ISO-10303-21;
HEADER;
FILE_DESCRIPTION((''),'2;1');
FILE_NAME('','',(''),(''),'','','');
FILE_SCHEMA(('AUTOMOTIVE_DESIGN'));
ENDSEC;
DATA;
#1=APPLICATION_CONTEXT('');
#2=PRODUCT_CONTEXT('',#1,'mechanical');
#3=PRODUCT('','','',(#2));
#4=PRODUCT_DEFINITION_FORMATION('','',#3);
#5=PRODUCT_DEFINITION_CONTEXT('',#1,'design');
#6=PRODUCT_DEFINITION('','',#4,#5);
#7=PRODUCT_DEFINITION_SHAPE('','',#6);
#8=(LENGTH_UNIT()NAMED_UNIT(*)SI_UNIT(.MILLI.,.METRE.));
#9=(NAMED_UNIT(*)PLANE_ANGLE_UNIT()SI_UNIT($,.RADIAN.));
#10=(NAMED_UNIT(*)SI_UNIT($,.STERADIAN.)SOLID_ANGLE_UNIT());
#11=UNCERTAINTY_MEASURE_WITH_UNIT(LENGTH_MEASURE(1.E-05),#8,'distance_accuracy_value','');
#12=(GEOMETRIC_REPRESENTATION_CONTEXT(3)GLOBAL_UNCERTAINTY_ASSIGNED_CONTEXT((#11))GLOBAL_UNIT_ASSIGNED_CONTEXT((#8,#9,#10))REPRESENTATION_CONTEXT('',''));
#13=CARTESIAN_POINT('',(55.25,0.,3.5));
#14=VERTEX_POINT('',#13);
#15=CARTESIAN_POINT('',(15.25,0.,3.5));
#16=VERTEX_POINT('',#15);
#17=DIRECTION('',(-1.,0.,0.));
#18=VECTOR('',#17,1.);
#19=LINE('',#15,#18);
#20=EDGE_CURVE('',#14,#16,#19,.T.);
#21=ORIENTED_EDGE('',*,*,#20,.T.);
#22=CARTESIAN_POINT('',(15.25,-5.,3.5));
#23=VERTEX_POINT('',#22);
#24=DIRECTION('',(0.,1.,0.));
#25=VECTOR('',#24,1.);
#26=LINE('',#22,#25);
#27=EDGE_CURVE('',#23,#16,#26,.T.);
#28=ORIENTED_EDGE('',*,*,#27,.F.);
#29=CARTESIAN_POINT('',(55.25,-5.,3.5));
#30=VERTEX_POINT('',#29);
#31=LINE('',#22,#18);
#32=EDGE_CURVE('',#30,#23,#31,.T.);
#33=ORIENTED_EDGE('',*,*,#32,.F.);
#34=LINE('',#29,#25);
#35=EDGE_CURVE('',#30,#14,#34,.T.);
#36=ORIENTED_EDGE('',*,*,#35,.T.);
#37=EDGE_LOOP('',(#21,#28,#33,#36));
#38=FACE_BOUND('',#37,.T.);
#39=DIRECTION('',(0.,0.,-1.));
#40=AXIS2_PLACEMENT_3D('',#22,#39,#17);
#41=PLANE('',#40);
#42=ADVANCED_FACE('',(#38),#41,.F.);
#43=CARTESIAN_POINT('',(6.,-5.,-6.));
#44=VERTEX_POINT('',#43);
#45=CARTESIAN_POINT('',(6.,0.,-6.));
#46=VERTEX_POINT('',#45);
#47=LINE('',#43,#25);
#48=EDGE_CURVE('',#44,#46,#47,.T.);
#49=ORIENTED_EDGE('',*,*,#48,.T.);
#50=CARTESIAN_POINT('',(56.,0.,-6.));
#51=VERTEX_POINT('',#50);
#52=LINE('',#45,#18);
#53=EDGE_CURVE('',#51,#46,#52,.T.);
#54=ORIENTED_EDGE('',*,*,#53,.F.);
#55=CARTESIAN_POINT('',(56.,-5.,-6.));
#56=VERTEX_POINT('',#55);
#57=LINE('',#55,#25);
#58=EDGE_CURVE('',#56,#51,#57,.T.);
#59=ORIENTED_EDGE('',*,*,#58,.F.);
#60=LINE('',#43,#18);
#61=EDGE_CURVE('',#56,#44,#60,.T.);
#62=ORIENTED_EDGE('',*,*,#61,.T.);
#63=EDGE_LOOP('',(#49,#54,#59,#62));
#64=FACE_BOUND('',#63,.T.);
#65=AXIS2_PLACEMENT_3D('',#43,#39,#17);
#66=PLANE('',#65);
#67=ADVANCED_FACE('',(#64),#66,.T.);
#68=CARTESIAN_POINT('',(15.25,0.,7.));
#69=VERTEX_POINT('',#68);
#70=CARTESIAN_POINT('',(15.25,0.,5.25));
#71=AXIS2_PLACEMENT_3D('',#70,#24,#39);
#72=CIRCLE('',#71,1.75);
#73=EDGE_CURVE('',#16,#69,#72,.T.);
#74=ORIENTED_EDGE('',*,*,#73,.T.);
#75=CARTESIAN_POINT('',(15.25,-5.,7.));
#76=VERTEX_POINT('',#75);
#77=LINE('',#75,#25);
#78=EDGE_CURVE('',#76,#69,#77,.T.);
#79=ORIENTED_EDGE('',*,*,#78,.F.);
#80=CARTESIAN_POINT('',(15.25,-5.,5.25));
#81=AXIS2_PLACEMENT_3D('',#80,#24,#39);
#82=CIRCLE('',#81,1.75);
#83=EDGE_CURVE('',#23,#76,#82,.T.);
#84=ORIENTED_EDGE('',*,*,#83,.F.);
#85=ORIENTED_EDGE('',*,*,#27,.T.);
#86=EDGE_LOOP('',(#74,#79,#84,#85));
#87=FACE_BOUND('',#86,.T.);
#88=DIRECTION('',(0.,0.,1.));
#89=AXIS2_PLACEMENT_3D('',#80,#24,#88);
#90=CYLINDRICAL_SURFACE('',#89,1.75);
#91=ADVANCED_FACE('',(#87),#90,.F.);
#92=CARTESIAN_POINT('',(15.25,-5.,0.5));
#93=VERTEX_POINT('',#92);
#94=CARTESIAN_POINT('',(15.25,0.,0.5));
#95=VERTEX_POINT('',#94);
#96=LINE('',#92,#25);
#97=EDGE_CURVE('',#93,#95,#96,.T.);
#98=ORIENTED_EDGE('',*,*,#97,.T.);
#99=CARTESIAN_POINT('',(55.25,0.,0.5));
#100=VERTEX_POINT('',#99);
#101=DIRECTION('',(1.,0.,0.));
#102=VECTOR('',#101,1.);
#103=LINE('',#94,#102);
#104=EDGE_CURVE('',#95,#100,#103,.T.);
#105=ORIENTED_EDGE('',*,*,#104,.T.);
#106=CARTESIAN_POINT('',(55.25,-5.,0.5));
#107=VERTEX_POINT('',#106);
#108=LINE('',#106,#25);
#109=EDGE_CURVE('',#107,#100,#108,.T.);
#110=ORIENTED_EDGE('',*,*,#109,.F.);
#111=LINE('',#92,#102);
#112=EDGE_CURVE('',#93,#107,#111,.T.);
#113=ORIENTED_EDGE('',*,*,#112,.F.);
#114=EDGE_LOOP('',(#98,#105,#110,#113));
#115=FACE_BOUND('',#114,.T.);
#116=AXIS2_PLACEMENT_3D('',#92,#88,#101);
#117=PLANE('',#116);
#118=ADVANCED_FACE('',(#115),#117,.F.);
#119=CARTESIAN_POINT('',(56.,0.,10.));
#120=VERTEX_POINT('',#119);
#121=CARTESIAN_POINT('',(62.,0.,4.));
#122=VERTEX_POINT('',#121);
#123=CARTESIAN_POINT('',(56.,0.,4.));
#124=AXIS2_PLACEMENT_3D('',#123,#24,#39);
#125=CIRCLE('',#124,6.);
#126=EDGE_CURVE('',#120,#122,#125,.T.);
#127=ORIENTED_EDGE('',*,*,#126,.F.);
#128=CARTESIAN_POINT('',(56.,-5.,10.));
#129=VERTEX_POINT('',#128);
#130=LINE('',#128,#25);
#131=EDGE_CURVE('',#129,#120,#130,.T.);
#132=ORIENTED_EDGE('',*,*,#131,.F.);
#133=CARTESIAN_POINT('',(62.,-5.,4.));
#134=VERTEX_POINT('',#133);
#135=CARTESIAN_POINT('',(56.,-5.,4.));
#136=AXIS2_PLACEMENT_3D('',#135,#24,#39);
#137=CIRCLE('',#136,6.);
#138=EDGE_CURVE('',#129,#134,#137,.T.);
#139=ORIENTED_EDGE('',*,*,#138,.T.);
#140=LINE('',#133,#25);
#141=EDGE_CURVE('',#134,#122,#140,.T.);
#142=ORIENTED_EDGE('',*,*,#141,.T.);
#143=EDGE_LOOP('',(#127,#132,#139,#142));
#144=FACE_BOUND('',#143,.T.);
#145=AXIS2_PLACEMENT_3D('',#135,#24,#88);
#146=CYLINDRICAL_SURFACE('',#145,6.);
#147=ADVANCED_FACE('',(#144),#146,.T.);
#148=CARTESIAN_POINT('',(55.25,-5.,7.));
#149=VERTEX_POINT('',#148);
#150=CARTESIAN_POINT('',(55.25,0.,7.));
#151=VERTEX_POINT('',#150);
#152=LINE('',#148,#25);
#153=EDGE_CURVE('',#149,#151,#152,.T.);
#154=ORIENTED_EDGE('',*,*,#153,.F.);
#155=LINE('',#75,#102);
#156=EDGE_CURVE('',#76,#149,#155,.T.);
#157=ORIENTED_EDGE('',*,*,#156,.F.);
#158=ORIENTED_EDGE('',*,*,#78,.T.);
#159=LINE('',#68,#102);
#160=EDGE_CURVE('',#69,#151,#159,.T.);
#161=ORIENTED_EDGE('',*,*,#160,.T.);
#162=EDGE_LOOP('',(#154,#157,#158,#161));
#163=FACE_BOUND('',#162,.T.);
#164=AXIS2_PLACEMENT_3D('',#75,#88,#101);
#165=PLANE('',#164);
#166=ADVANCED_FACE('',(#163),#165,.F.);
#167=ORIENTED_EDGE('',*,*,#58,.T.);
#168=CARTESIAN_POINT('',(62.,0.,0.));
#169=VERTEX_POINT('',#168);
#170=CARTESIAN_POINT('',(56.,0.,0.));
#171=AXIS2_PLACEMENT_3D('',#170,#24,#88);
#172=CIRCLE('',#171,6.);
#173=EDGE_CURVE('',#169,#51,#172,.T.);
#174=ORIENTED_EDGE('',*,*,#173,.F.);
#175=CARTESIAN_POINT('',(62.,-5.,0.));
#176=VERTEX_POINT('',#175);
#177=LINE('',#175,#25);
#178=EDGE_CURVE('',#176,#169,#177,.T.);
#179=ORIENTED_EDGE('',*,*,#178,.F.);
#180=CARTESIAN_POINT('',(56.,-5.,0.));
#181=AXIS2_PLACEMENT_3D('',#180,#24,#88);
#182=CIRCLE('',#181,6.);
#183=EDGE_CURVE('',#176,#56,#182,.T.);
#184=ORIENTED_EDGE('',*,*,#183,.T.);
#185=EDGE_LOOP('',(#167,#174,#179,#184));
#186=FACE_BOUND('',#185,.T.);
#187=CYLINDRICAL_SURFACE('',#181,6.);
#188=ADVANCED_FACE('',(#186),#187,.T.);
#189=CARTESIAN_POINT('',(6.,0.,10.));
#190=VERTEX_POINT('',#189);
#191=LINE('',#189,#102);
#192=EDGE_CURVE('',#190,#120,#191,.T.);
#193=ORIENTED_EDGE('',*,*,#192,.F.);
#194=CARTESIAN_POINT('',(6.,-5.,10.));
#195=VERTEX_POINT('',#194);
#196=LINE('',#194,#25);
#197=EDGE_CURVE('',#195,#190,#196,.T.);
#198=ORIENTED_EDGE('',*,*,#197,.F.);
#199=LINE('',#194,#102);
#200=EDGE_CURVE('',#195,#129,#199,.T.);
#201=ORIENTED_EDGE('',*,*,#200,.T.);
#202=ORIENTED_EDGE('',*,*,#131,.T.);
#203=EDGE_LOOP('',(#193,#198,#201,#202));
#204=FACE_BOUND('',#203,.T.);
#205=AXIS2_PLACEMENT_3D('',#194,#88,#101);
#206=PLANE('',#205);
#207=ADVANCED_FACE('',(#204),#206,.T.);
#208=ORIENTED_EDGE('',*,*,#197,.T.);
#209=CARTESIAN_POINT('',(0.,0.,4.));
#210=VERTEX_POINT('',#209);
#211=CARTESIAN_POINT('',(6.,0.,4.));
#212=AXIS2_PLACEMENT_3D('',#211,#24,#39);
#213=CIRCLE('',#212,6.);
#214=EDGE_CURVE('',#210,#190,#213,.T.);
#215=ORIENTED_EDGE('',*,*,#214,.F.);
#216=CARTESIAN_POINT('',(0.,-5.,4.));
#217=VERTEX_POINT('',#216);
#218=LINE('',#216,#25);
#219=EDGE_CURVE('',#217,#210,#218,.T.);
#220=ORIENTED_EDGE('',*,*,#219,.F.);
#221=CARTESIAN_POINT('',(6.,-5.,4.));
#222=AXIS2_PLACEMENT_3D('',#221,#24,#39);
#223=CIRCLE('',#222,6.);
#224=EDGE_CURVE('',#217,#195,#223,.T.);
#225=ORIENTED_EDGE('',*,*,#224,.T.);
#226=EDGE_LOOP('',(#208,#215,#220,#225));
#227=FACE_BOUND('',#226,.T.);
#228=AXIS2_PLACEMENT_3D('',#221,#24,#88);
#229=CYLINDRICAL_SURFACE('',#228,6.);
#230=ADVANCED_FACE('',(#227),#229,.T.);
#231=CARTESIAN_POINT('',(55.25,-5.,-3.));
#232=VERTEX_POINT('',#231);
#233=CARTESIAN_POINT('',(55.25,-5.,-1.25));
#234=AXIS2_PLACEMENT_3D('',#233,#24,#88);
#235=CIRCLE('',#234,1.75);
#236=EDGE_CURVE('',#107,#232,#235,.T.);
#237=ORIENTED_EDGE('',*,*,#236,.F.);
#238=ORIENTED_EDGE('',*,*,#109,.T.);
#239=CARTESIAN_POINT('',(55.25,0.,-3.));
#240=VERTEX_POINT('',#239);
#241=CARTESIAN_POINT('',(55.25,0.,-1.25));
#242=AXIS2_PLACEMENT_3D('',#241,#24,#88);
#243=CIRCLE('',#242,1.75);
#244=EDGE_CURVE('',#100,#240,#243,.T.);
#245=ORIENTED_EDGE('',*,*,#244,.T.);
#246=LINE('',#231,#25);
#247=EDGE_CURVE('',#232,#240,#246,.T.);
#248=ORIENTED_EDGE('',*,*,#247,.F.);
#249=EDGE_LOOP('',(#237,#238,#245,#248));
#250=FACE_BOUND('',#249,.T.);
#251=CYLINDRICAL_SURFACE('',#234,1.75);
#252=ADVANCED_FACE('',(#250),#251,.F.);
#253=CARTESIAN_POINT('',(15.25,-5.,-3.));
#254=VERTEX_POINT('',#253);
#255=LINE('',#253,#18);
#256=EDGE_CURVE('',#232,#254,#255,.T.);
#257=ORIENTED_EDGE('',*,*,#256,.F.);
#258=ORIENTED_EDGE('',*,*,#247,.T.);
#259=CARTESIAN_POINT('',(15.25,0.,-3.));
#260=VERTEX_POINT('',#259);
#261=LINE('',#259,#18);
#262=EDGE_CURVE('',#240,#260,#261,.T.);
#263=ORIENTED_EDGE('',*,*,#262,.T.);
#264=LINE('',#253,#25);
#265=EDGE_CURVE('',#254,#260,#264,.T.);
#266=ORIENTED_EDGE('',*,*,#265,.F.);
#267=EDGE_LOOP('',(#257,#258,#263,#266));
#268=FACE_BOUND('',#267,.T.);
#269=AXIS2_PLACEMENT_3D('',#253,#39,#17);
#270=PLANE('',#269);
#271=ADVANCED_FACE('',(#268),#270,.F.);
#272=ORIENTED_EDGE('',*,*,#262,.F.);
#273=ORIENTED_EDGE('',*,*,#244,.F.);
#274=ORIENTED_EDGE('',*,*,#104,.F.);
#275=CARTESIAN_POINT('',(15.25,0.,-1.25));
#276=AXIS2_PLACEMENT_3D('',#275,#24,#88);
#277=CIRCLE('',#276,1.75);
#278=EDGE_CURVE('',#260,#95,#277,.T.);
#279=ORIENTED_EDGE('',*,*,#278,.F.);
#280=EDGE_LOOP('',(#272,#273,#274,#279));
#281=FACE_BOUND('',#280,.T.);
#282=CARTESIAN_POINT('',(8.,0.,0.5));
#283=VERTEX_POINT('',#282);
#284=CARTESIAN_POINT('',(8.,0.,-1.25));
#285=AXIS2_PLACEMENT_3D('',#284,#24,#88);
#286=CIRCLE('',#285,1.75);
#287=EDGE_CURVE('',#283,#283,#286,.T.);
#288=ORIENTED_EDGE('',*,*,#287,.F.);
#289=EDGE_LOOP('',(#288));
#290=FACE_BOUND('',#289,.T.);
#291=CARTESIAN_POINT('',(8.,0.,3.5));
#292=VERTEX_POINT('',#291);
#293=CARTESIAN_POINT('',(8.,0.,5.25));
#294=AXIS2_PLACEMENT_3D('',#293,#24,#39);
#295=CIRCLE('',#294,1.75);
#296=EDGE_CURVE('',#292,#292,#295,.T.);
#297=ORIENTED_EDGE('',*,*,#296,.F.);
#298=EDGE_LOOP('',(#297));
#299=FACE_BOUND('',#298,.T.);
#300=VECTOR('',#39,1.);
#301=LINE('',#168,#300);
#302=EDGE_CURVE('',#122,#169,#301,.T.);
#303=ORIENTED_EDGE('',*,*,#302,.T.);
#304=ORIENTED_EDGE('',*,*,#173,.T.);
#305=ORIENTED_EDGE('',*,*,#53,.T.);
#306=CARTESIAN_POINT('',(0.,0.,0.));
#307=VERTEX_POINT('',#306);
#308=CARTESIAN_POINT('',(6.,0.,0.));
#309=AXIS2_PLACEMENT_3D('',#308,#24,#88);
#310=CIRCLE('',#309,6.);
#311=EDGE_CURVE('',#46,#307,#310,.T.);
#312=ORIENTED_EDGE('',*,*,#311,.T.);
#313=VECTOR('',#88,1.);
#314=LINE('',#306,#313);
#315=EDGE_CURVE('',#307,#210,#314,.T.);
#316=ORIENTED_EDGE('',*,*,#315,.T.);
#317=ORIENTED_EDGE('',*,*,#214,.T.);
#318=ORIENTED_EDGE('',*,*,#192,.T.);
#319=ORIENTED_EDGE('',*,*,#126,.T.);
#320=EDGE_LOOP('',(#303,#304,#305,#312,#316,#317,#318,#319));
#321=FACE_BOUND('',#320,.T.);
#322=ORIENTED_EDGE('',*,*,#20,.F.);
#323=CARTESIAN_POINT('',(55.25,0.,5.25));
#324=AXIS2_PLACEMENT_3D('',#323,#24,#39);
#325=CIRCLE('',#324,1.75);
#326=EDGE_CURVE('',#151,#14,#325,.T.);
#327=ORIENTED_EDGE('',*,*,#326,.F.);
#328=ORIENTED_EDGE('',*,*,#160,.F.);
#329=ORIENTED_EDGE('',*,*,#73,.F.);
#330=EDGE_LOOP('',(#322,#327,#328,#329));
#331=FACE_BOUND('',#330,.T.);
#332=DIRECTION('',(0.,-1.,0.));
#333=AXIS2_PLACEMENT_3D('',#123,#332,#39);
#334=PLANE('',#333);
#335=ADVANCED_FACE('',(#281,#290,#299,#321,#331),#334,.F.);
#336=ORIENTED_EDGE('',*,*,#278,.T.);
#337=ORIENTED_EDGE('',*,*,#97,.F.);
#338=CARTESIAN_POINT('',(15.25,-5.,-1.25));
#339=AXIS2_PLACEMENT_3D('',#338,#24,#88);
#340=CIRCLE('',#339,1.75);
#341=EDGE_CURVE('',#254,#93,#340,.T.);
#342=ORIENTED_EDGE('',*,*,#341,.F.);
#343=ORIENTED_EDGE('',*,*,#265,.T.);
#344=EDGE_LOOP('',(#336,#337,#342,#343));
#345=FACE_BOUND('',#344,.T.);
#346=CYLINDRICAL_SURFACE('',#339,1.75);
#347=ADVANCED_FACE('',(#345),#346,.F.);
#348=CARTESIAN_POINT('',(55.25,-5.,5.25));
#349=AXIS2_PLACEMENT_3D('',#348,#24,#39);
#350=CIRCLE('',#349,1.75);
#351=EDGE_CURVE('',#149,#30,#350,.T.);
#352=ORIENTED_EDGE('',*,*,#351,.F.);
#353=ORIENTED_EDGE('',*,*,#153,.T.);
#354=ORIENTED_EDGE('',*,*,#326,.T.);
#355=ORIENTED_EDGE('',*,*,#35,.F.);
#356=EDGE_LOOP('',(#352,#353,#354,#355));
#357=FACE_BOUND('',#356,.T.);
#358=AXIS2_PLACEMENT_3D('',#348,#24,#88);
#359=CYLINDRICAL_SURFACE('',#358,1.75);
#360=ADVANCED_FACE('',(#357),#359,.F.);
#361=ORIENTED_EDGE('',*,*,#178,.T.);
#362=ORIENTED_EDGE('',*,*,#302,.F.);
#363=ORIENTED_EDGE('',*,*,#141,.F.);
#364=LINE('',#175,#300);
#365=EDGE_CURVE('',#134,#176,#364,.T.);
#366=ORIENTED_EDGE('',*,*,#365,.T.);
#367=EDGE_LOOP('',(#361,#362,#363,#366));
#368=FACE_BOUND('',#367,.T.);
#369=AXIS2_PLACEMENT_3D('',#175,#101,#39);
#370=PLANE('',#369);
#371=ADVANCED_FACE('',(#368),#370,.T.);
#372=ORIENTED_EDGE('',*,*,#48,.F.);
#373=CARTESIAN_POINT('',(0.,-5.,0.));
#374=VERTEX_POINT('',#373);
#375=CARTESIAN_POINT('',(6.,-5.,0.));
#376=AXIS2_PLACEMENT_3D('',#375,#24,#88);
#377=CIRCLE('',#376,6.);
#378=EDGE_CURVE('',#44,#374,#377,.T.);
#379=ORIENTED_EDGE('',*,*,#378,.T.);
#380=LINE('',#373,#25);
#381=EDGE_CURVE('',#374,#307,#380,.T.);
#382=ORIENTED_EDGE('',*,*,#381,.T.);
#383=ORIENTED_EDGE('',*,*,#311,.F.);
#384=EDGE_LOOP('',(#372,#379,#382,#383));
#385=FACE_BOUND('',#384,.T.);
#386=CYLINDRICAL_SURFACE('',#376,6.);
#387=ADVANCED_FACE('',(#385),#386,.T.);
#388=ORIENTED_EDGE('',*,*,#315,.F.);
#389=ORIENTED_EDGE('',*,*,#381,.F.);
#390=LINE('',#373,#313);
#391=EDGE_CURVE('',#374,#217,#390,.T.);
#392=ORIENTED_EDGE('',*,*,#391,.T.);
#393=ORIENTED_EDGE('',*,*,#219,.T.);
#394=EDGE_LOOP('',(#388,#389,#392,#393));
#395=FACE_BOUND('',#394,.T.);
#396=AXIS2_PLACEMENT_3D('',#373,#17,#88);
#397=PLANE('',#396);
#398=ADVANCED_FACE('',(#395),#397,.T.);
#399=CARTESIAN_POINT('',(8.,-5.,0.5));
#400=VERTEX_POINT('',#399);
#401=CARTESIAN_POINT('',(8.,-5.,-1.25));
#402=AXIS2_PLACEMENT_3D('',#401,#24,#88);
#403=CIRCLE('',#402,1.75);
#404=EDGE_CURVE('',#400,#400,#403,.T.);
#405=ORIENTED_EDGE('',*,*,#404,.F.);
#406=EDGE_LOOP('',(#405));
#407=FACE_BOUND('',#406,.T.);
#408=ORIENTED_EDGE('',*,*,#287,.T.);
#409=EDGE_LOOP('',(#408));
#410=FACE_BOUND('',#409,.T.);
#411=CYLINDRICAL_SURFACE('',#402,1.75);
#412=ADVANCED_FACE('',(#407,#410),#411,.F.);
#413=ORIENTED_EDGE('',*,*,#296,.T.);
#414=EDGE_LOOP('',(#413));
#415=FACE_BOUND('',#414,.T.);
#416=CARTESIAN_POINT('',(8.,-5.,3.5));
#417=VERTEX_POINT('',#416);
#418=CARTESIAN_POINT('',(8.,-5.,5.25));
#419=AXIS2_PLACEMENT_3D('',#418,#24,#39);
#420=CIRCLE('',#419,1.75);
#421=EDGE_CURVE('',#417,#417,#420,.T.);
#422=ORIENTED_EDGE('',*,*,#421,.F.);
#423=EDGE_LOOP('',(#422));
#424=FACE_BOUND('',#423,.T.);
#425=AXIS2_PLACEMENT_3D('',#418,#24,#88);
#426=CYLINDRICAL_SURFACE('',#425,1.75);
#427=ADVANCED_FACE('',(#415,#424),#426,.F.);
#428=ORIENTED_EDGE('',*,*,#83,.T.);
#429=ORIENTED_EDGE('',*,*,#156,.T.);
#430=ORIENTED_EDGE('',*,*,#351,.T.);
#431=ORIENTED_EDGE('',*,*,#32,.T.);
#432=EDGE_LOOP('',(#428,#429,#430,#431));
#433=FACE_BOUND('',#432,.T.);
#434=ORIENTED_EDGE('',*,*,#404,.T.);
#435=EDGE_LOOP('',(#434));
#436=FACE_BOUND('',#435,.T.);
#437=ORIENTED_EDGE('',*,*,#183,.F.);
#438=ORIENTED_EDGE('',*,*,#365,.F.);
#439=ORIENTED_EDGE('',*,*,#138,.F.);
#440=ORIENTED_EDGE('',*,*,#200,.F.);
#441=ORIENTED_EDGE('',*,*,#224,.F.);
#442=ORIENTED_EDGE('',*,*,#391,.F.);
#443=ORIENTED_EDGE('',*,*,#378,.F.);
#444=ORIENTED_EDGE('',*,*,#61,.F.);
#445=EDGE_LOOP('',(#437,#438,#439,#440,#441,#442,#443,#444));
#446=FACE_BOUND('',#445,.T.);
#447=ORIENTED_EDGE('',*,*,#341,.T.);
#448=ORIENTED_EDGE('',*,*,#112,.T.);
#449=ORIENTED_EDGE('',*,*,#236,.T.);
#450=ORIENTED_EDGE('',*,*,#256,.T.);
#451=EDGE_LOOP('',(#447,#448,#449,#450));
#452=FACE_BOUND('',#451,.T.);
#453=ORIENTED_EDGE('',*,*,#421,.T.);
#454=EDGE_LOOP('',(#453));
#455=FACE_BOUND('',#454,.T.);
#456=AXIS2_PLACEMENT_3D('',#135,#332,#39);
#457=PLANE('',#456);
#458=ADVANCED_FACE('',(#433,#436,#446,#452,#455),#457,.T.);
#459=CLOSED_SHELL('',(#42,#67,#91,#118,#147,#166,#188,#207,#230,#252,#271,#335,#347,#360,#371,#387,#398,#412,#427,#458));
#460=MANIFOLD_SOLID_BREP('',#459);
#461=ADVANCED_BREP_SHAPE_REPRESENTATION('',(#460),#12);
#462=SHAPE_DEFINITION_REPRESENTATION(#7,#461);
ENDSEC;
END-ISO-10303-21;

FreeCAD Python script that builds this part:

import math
import FreeCAD as App
import Part
import Sketcher
Q = App.Units.Quantity

doc = App.newDocument("Part")
body = doc.addObject("PartDesign::Body", "Body")

sketch1 = body.newObject("Sketcher::SketchObject", "Sketch")
sketch1.AttachmentSupport = (doc.getObject("XZ_Plane"), [""])
sketch1.MapMode = "FlatFace"
sketch1.addGeometry([
    Part.LineSegment(App.Vector(56, -6, 0), App.Vector(6, -6, 0)),
    Part.ArcOfCircle(Part.Circle(App.Vector(6, 0, 0), App.Vector(0, 0, 1), 6), math.radians(180), math.radians(270)),
    Part.LineSegment(App.Vector(0, 0, 0), App.Vector(0, 4, 0)),
    Part.ArcOfCircle(Part.Circle(App.Vector(6, 4, 0), App.Vector(0, 0, 1), 6), math.radians(90), math.radians(180)),
    Part.LineSegment(App.Vector(6, 10, 0), App.Vector(56, 10, 0)),
    Part.ArcOfCircle(Part.Circle(App.Vector(56, 4, 0), App.Vector(0, 0, 1), 6), math.radians(0), math.radians(90)),
    Part.LineSegment(App.Vector(62, 4, 0), App.Vector(62, 0, 0)),
    Part.ArcOfCircle(Part.Circle(App.Vector(56, 0, 0), App.Vector(0, 0, 1), 6), math.radians(-90), math.radians(0)),
    Part.ArcOfCircle(Part.Circle(App.Vector(15.25, 5.25, 0), App.Vector(0, 0, 1), 1.75), math.radians(90), math.radians(270)),
    Part.LineSegment(App.Vector(15.25, 3.5, 0), App.Vector(55.25, 3.5, 0)),
    Part.ArcOfCircle(Part.Circle(App.Vector(55.25, 5.25, 0), App.Vector(0, 0, 1), 1.75), math.radians(-90), math.radians(90)),
    Part.LineSegment(App.Vector(55.25, 7, 0), App.Vector(15.25, 7, 0)),
    Part.Circle(App.Vector(8, 5.25, 0), App.Vector(0, 0, 1), 1.75),
    Part.LineSegment(App.Vector(15.25, -3, 0), App.Vector(55.25, -3, 0)),
    Part.ArcOfCircle(Part.Circle(App.Vector(55.25, -1.25, 0), App.Vector(0, 0, 1), 1.75), math.radians(-90), math.radians(90)),
    Part.LineSegment(App.Vector(55.25, 0.5, 0), App.Vector(15.25, 0.5, 0)),
    Part.ArcOfCircle(Part.Circle(App.Vector(15.25, -1.25, 0), App.Vector(0, 0, 1), 1.75), math.radians(90), math.radians(270)),
    Part.Circle(App.Vector(8, -1.25, 0), App.Vector(0, 0, 1), 1.75),
], False)
sketch1.addConstraint([
    Sketcher.Constraint("Tangent", 0, 2, 1, 2),
    Sketcher.Constraint("Tangent", 1, 1, 2, 1),
    Sketcher.Constraint("Tangent", 2, 2, 3, 2),
    Sketcher.Constraint("Tangent", 3, 1, 4, 1),
    Sketcher.Constraint("Tangent", 4, 2, 5, 2),
    Sketcher.Constraint("Tangent", 5, 1, 6, 1),
    Sketcher.Constraint("Tangent", 6, 2, 7, 2),
    Sketcher.Constraint("Tangent", 7, 1, 0, 1),
    Sketcher.Constraint("Tangent", 8, 2, 9, 1),
    Sketcher.Constraint("Tangent", 9, 2, 10, 1),
    Sketcher.Constraint("Tangent", 10, 2, 11, 1),
    Sketcher.Constraint("Tangent", 11, 2, 8, 1),
    Sketcher.Constraint("Tangent", 13, 2, 14, 1),
    Sketcher.Constraint("Tangent", 14, 2, 15, 1),
    Sketcher.Constraint("Tangent", 15, 2, 16, 1),
    Sketcher.Constraint("Tangent", 16, 2, 13, 1),
    Sketcher.Constraint("Horizontal", 0),
    Sketcher.Constraint("Vertical", 2),
    Sketcher.Constraint("Horizontal", 4),
    Sketcher.Constraint("Vertical", 6),
    Sketcher.Constraint("Horizontal", 9),
    Sketcher.Constraint("Horizontal", 11),
    Sketcher.Constraint("Horizontal", 13),
    Sketcher.Constraint("Horizontal", 15),
    Sketcher.Constraint("Coincident", 1, 1, -1, 1),
    Sketcher.Constraint("Equal", 1, 3),
    Sketcher.Constraint("Equal", 3, 5),
    Sketcher.Constraint("Equal", 5, 7),
    Sketcher.Constraint("Equal", 10, 12),
    Sketcher.Constraint("Equal", 12, 14),
    Sketcher.Constraint("Equal", 16, 17),
    Sketcher.Constraint("Horizontal", 10, 3, 12, 3),
    Sketcher.Constraint("Horizontal", 16, 3, 17, 3),
    Sketcher.Constraint("Vertical", 10, 3, 14, 3),
    Sketcher.Constraint("Vertical", 8, 3, 16, 3),
    Sketcher.Constraint("Vertical", 12, 3, 17, 3),
    Sketcher.Constraint("Radius", 1, Q("6 mm")),
    Sketcher.Constraint("Diameter", 12, Q("3.5 mm")),
    Sketcher.Constraint("DistanceX", 0, 2, 0, 1, Q("50 mm")),
    Sketcher.Constraint("DistanceX", 9, 1, 9, 2, Q("40 mm")),
    Sketcher.Constraint("DistanceY", 2, 1, 2, 2, Q("4 mm")),
    Sketcher.Constraint("DistanceX", -1, 1, 12, 3, Q("8 mm")),
    Sketcher.Constraint("DistanceY", -1, 1, 10, 2, Q("7 mm")),
    Sketcher.Constraint("DistanceY", 13, 2, -1, 1, Q("3 mm")),
    Sketcher.Constraint("DistanceX", -1, 1, 8, 3, Q("15.25 mm")),
])
pad1 = body.newObject("PartDesign::Pad", "Pad")
pad1.Profile = sketch1
pad1.Length = 5

doc.recompute()
